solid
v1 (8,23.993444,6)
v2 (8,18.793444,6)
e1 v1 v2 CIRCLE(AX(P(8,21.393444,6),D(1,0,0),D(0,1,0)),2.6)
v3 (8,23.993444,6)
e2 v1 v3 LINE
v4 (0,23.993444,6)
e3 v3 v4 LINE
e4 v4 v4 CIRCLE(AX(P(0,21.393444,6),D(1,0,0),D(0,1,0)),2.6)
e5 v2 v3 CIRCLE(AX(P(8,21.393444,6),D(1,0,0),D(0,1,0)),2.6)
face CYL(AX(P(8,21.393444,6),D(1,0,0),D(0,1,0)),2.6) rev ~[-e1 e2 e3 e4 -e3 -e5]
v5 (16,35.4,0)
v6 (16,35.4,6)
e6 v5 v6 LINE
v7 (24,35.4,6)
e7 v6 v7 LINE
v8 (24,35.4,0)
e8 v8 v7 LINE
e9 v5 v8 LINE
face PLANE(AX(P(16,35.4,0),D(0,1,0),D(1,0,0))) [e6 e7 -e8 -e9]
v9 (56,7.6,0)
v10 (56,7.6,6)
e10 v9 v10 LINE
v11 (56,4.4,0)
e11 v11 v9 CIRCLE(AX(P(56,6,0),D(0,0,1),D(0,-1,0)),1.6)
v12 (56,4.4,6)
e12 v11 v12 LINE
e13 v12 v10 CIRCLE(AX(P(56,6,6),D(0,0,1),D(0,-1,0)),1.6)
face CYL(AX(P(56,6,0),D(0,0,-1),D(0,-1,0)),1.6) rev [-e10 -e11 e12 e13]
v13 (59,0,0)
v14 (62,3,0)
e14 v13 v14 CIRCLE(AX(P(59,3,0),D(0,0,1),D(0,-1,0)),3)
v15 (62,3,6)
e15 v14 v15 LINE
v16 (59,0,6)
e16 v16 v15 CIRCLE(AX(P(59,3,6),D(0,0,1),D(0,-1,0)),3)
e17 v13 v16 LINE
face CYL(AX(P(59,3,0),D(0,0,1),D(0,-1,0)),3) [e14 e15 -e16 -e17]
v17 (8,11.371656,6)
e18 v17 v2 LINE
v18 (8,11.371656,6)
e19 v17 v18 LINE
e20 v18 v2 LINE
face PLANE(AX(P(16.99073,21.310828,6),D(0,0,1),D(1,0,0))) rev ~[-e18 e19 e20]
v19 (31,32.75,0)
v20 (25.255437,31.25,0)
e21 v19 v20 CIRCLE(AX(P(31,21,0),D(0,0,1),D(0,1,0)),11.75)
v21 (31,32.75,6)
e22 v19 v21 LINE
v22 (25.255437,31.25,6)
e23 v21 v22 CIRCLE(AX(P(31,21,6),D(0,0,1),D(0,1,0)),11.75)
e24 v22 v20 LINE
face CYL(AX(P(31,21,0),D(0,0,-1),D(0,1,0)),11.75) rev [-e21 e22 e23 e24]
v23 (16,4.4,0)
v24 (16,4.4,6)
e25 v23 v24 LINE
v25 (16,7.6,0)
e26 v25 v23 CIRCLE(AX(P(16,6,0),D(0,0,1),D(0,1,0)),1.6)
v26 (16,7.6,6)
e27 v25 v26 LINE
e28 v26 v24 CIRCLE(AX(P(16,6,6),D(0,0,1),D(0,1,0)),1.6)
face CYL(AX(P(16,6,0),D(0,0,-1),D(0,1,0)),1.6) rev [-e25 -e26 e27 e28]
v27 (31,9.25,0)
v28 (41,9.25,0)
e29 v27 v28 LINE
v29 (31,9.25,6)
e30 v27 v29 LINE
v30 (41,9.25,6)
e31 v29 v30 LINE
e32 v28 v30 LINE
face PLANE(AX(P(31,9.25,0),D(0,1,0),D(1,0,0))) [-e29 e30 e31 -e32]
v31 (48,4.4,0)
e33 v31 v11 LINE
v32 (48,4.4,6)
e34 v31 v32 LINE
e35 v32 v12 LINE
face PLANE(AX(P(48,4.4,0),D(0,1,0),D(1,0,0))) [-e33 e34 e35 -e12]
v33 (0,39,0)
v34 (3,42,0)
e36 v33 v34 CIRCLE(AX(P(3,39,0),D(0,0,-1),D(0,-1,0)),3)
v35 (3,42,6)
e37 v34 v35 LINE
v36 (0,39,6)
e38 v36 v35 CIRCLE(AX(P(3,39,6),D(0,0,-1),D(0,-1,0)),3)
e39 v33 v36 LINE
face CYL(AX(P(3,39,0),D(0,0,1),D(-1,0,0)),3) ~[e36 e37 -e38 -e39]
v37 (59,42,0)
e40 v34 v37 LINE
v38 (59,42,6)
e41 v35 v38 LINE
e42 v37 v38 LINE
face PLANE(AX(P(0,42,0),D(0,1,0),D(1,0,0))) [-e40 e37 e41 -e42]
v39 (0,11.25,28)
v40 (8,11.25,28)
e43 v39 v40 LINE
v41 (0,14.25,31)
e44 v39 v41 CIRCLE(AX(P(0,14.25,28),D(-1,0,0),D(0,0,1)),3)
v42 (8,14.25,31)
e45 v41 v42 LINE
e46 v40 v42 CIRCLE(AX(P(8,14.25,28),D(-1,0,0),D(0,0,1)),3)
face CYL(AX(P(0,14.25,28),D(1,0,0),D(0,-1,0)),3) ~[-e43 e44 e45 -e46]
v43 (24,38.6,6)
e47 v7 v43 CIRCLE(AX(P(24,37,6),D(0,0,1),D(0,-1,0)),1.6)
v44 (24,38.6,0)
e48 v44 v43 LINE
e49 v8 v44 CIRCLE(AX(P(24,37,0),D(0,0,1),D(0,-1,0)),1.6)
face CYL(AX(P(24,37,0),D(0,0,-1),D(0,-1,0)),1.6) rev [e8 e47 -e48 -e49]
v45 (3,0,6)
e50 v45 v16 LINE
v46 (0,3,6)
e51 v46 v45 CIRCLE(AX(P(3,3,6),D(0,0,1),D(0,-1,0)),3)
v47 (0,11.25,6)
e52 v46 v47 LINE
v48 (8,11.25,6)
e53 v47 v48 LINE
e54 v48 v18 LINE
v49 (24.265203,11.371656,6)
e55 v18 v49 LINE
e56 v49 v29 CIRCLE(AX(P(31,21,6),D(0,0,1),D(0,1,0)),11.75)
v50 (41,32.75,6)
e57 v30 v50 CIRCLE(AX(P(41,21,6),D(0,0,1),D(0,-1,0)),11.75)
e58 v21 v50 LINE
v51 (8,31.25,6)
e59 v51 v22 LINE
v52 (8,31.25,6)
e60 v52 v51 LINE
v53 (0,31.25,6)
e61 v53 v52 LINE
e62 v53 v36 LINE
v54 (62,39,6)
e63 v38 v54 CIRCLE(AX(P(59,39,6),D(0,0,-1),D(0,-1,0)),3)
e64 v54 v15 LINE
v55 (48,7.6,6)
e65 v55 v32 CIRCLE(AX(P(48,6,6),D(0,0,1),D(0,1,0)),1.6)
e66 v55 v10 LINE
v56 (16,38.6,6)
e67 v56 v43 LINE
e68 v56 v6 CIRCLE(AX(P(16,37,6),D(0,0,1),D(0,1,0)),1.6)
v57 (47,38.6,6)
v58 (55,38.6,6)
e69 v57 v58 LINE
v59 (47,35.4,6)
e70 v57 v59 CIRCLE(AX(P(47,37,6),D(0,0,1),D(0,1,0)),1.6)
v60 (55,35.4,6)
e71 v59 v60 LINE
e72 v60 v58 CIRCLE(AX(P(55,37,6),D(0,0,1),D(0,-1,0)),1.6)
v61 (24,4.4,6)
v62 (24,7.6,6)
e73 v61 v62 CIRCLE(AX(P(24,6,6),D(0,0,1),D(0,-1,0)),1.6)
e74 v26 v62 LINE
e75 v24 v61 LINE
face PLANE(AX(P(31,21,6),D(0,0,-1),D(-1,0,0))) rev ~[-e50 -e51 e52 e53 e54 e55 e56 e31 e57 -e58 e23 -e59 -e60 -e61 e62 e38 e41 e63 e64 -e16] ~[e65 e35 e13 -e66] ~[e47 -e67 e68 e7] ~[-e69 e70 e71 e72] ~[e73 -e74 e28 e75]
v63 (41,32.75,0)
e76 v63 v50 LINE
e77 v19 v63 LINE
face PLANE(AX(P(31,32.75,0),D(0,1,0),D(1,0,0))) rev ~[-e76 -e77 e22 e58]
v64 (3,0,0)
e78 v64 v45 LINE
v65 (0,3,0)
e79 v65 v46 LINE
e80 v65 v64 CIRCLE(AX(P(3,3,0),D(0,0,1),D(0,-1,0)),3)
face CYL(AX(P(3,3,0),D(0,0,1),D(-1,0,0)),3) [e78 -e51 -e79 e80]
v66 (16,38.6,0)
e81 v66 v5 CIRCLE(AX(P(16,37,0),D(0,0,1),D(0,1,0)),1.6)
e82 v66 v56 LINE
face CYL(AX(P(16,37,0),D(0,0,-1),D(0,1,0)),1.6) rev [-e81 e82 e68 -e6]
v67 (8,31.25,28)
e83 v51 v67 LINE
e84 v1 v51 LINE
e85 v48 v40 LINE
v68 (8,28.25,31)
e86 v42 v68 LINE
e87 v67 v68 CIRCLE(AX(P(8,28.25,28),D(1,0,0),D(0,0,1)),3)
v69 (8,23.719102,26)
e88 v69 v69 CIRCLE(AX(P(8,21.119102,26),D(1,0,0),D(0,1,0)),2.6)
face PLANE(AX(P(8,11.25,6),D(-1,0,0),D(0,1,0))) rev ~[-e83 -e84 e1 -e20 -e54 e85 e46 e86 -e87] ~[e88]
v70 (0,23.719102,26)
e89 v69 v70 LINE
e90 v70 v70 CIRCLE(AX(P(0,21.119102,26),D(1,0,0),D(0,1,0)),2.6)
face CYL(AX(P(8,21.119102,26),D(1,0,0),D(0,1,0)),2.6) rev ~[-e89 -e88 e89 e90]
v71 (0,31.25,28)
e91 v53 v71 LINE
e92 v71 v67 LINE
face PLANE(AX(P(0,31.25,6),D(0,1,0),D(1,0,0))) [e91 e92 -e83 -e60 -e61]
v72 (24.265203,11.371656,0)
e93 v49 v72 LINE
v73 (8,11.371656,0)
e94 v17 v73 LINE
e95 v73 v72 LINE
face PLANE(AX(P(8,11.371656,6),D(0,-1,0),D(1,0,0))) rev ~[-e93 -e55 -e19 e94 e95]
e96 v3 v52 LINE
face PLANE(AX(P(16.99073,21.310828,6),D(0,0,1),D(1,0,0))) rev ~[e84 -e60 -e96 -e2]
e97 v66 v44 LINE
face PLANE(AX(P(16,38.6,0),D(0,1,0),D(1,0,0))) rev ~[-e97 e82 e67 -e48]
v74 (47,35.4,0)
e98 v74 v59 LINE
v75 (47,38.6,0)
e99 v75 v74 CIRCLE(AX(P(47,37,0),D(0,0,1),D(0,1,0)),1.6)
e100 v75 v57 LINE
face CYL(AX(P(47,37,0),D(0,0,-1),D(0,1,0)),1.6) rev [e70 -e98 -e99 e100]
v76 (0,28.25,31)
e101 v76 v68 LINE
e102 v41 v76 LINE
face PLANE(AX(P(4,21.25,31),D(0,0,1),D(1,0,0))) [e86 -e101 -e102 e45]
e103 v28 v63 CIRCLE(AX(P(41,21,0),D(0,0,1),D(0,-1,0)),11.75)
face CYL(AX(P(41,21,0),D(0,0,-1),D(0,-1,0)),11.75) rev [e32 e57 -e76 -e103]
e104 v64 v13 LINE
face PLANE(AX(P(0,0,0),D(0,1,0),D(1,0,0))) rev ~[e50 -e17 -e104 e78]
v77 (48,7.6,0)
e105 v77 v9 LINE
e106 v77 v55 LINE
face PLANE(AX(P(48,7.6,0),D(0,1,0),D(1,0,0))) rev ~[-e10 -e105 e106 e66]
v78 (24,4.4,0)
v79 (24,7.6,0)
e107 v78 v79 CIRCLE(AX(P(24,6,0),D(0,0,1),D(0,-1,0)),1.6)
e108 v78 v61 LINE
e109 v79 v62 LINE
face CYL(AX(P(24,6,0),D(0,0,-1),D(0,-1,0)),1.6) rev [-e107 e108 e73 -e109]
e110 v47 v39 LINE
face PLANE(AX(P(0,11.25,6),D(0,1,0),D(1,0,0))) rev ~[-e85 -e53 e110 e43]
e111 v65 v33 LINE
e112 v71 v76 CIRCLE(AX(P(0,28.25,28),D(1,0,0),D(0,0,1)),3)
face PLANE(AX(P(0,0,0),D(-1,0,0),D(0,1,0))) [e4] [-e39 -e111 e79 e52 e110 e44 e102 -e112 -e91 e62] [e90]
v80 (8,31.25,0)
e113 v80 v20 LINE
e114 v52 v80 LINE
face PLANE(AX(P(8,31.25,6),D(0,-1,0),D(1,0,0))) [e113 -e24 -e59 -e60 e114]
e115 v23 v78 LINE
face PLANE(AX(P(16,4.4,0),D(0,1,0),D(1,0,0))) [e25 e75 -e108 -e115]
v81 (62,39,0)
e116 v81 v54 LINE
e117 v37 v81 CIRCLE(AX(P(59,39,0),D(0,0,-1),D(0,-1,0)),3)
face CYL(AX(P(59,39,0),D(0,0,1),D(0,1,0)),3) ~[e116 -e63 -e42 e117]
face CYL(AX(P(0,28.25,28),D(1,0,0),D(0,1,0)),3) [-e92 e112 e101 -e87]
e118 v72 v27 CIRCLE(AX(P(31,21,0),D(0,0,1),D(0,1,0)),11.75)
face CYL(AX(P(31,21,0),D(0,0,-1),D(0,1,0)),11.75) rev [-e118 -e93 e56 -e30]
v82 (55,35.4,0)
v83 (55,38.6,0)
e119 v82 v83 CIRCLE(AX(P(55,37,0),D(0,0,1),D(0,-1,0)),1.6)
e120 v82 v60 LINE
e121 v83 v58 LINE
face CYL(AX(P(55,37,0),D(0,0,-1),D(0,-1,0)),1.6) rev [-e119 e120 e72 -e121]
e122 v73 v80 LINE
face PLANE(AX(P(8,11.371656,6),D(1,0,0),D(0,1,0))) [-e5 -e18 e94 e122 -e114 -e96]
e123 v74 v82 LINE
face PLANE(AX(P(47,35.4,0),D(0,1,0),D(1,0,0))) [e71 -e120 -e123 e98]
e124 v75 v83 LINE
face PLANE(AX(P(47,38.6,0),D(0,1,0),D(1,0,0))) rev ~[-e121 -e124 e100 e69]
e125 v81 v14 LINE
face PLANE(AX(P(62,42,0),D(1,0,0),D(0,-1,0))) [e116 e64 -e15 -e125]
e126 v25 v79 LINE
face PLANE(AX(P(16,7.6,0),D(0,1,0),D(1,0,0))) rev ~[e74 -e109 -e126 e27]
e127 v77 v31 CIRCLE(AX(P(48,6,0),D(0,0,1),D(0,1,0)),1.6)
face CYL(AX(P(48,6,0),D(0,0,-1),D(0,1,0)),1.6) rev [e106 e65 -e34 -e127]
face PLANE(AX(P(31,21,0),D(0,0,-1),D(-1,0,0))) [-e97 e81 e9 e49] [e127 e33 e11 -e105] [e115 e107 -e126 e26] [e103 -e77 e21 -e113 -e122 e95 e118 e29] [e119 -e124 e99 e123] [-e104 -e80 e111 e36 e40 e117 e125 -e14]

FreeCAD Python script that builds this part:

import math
import FreeCAD as App
import Part
import Sketcher
from FreeCAD import Vector
Q = App.Units.Quantity


def edges_at(feature, points):
    """Names of the edges that pass closest to the given points."""
    edges = feature.Shape.Edges
    near = lambda p: min(range(len(edges)), key=lambda i: edges[i].distToShape(Part.Vertex(*p))[0])
    return sorted({f"Edge{near(p) + 1}" for p in points})

doc = App.newDocument("Part")
body = doc.addObject("PartDesign::Body", "Body")

sketch1 = body.newObject("Sketcher::SketchObject", "Sketch")
sketch1.AttachmentSupport = (doc.getObject("XY_Plane"), [""])
sketch1.MapMode = "FlatFace"
sketch1.addGeometry([
    Part.LineSegment(Vector(62, 0, 0), Vector(62, 42, 0)),
    Part.LineSegment(Vector(62, 42, 0), Vector(0, 42, 0)),
    Part.LineSegment(Vector(0, 42, 0), Vector(0, 0, 0)),
    Part.LineSegment(Vector(0, 0, 0), Vector(62, 0, 0)),
    Part.LineSegment(Vector(48, 7.6, 0), Vector(56, 7.6, 0)),
    Part.ArcOfCircle(Part.Circle(Vector(56, 6, 0), Vector(0, 0, 1), 1.6), math.radians(-90), math.radians(90)),
    Part.LineSegment(Vector(56, 4.4, 0), Vector(48, 4.4, 0)),
    Part.ArcOfCircle(Part.Circle(Vector(48, 6, 0), Vector(0, 0, 1), 1.6), math.radians(90), math.radians(270)),
    Part.LineSegment(Vector(16, 7.6, 0), Vector(24, 7.6, 0)),
    Part.ArcOfCircle(Part.Circle(Vector(24, 6, 0), Vector(0, 0, 1), 1.6), math.radians(-90), math.radians(90)),
    Part.LineSegment(Vector(24, 4.4, 0), Vector(16, 4.4, 0)),
    Part.ArcOfCircle(Part.Circle(Vector(16, 6, 0), Vector(0, 0, 1), 1.6), math.radians(90), math.radians(270)),
    Part.LineSegment(Vector(31, 32.8, 0), Vector(41, 32.8, 0)),
    Part.ArcOfCircle(Part.Circle(Vector(41, 21, 0), Vector(0, 0, 1), 11.8), math.radians(-90), math.radians(90)),
    Part.LineSegment(Vector(41, 9.2, 0), Vector(31, 9.2, 0)),
    Part.ArcOfCircle(Part.Circle(Vector(31, 21, 0), Vector(0, 0, 1), 11.8), math.radians(90), math.radians(270)),
    Part.LineSegment(Vector(47, 38.6, 0), Vector(55, 38.6, 0)),
    Part.ArcOfCircle(Part.Circle(Vector(55, 37, 0), Vector(0, 0, 1), 1.6), math.radians(-90), math.radians(90)),
    Part.LineSegment(Vector(55, 35.4, 0), Vector(47, 35.4, 0)),
    Part.ArcOfCircle(Part.Circle(Vector(47, 37, 0), Vector(0, 0, 1), 1.6), math.radians(90), math.radians(270)),
    Part.LineSegment(Vector(16, 38.6, 0), Vector(24, 38.6, 0)),
    Part.ArcOfCircle(Part.Circle(Vector(24, 37, 0), Vector(0, 0, 1), 1.6), math.radians(-90), math.radians(90)),
    Part.LineSegment(Vector(24, 35.4, 0), Vector(16, 35.4, 0)),
    Part.ArcOfCircle(Part.Circle(Vector(16, 37, 0), Vector(0, 0, 1), 1.6), math.radians(90), math.radians(270)),
], False)
sketch1.addConstraint([
    Sketcher.Constraint("Coincident", 0, 2, 1, 1),
    Sketcher.Constraint("Coincident", 1, 2, 2, 1),
    Sketcher.Constraint("Coincident", 2, 2, 3, 1),
    Sketcher.Constraint("Coincident", 3, 2, 0, 1),
    Sketcher.Constraint("Tangent", 4, 2, 5, 2),
    Sketcher.Constraint("Tangent", 5, 1, 6, 1),
    Sketcher.Constraint("Tangent", 6, 2, 7, 2),
    Sketcher.Constraint("Tangent", 7, 1, 4, 1),
    Sketcher.Constraint("Tangent", 8, 2, 9, 2),
    Sketcher.Constraint("Tangent", 9, 1, 10, 1),
    Sketcher.Constraint("Tangent", 10, 2, 11, 2),
    Sketcher.Constraint("Tangent", 11, 1, 8, 1),
    Sketcher.Constraint("Tangent", 12, 2, 13, 2),
    Sketcher.Constraint("Tangent", 13, 1, 14, 1),
    Sketcher.Constraint("Tangent", 14, 2, 15, 2),
    Sketcher.Constraint("Tangent", 15, 1, 12, 1),
    Sketcher.Constraint("Tangent", 16, 2, 17, 2),
    Sketcher.Constraint("Tangent", 17, 1, 18, 1),
    Sketcher.Constraint("Tangent", 18, 2, 19, 2),
    Sketcher.Constraint("Tangent", 19, 1, 16, 1),
    Sketcher.Constraint("Tangent", 20, 2, 21, 2),
    Sketcher.Constraint("Tangent", 21, 1, 22, 1),
    Sketcher.Constraint("Tangent", 22, 2, 23, 2),
    Sketcher.Constraint("Tangent", 23, 1, 20, 1),
    Sketcher.Constraint("Vertical", 0),
    Sketcher.Constraint("Horizontal", 1),
    Sketcher.Constraint("Vertical", 2),
    Sketcher.Constraint("Horizontal", 3),
    Sketcher.Constraint("Horizontal", 4),
    Sketcher.Constraint("Horizontal", 6),
    Sketcher.Constraint("Horizontal", 8),
    Sketcher.Constraint("Horizontal", 10),
    Sketcher.Constraint("Horizontal", 12),
    Sketcher.Constraint("Horizontal", 14),
    Sketcher.Constraint("Horizontal", 16),
    Sketcher.Constraint("Horizontal", 18),
    Sketcher.Constraint("Horizontal", 20),
    Sketcher.Constraint("Horizontal", 22),
    Sketcher.Constraint("Coincident", 2, 2, -1, 1),
    Sketcher.Constraint("Equal", 7, 9),
    Sketcher.Constraint("Equal", 11, 17),
    Sketcher.Constraint("Equal", 19, 21),
    Sketcher.Constraint("Horizontal", 7, 3, 9, 3),
    Sketcher.Constraint("Horizontal", 19, 3, 21, 3),
    Sketcher.Constraint("Vertical", 9, 3, 21, 3),
    Sketcher.Constraint("Vertical", 11, 3, 23, 3),
    Sketcher.Constraint("Equal", 6, 8),
    Sketcher.Constraint("Equal", 10, 16),
    Sketcher.Constraint("Radius", 5, Q("1.6 mm")),
    Sketcher.Constraint("DistanceX", 1, 2, 1, 1, Q("62 mm")),
    Sketcher.Constraint("DistanceX", 4, 1, 4, 2, Q("8 mm")),
    Sketcher.Constraint("DistanceX", 12, 1, 12, 2, Q("10 mm")),
    Sketcher.Constraint("DistanceY", 0, 1, 0, 2, Q("42 mm")),
    Sketcher.Constraint("Radius", 13, Q("11.75 mm")),
    Sketcher.Constraint("DistanceX", -1, 1, 5, 3, Q("56 mm")),
    Sketcher.Constraint("DistanceY", -1, 1, 5, 3, Q("6 mm")),
    Sketcher.Constraint("DistanceX", -1, 1, 9, 3, Q("24 mm")),
    Sketcher.Constraint("DistanceX", -1, 1, 13, 3, Q("41 mm")),
    Sketcher.Constraint("DistanceY", -1, 1, 13, 3, Q("21 mm")),
    Sketcher.Constraint("DistanceX", -1, 1, 17, 3, Q("55 mm")),
    Sketcher.Constraint("DistanceY", -1, 1, 17, 3, Q("37 mm")),
])
pad1 = body.newObject("PartDesign::Pad", "Pad")
pad1.Profile = sketch1
pad1.Length = 6

sketch2 = body.newObject("Sketcher::SketchObject", "Sketch001")
sketch2.AttachmentSupport = (doc.getObject("XY_Plane"), [""])
sketch2.MapMode = "FlatFace"
sketch2.AttachmentOffset = App.Placement(Vector(0, 0, 6), App.Rotation())
sketch2.addGeometry([
    Part.LineSegment(Vector(0, 31, 0), Vector(0, 11, 0)),
    Part.LineSegment(Vector(0, 11, 0), Vector(8, 11, 0)),
    Part.LineSegment(Vector(8, 11, 0), Vector(8, 31, 0)),
    Part.LineSegment(Vector(8, 31, 0), Vector(0, 31, 0)),
], False)
sketch2.addConstraint([
    Sketcher.Constraint("Coincident", 0, 2, 1, 1),
    Sketcher.Constraint("Coincident", 1, 2, 2, 1),
    Sketcher.Constraint("Coincident", 2, 2, 3, 1),
    Sketcher.Constraint("Coincident", 3, 2, 0, 1),
    Sketcher.Constraint("Vertical", 0),
    Sketcher.Constraint("Horizontal", 1),
    Sketcher.Constraint("Vertical", 2),
    Sketcher.Constraint("Horizontal", 3),
    Sketcher.Constraint("PointOnObject", 0, 2, -2),
    Sketcher.Constraint("DistanceX", 1, 1, 1, 2, Q("8 mm")),
    Sketcher.Constraint("DistanceY", 0, 2, 0, 1, Q("20 mm")),
    Sketcher.Constraint("DistanceY", -1, 1, 0, 2, Q("11.25 mm")),
])
pad2 = body.newObject("PartDesign::Pad", "Pad001")
pad2.Profile = sketch2
pad2.Type = "TwoLengths"
pad2.Length = 25
pad2.Length2 = 4

sketch3 = body.newObject("Sketcher::SketchObject", "Sketch002")
sketch3.AttachmentSupport = (doc.getObject("XY_Plane"), [""])
sketch3.MapMode = "FlatFace"
sketch3.AttachmentOffset = App.Placement(Vector(0, 0, 6), App.Rotation())
sketch3.addGeometry([
    Part.LineSegment(Vector(8, 31, 0), Vector(8, 11, 0)),
    Part.LineSegment(Vector(8, 11, 0), Vector(26, 11, 0)),
    Part.LineSegment(Vector(26, 11, 0), Vector(26, 31, 0)),
    Part.LineSegment(Vector(26, 31, 0), Vector(8, 31, 0)),
], False)
sketch3.addConstraint([
    Sketcher.Constraint("Coincident", 0, 2, 1, 1),
    Sketcher.Constraint("Coincident", 1, 2, 2, 1),
    Sketcher.Constraint("Coincident", 2, 2, 3, 1),
    Sketcher.Constraint("Coincident", 3, 2, 0, 1),
    Sketcher.Constraint("Vertical", 0),
    Sketcher.Constraint("Horizontal", 1),
    Sketcher.Constraint("Vertical", 2),
    Sketcher.Constraint("Horizontal", 3),
    Sketcher.Constraint("DistanceX", -1, 1, 0, 2, Q("8 mm")),
    Sketcher.Constraint("DistanceY", -1, 1, 2, 2, Q("31.25 mm")),
    Sketcher.Constraint("DistanceX", 1, 1, 1, 2, Q("17.981461 mm")),
    Sketcher.Constraint("DistanceY", 0, 2, 0, 1, Q("19.878344 mm")),
])
pocket1 = body.newObject("PartDesign::Pocket", "Pocket")
pocket1.Profile = sketch3
pocket1.Length = 6

sketch4 = body.newObject("Sketcher::SketchObject", "Sketch003")
sketch4.AttachmentSupport = (doc.getObject("YZ_Plane"), [""])
sketch4.MapMode = "FlatFace"
sketch4.AttachmentOffset = App.Placement(Vector(0, 0, 8), App.Rotation())
sketch4.addGeometry([
    Part.Circle(Vector(21.1, 26, 0), Vector(0, 0, 1), 2.6),
    Part.Circle(Vector(21.4, 6, 0), Vector(0, 0, 1), 2.6),
], False)
sketch4.addConstraint([
    Sketcher.Constraint("Equal", 0, 1),
    Sketcher.Constraint("Diameter", 0, Q("5.2 mm")),
    Sketcher.Constraint("DistanceY", -1, 1, 0, 3, Q("26 mm")),
    Sketcher.Constraint("DistanceY", -1, 1, 1, 3, Q("6 mm")),
    Sketcher.Constraint("DistanceX", 0, 3, 1, 3, Q("0.274342 mm")),
    Sketcher.Constraint("DistanceX", -1, 1, 0, 3, Q("21.119102 mm")),
])
pocket2 = body.newObject("PartDesign::Pocket", "Pocket001")
pocket2.Profile = sketch4
pocket2.Length = 9
doc.recompute()

fillet = body.newObject("PartDesign::Fillet", "Fillet")
fillet.Base = (pocket2, edges_at(pocket2, [
    (0, 0, 3),
    (62, 0, 3),
    (62, 42, 3),
    (0, 42, 3),
    (4, 31.25, 31),
    (4, 11.25, 31),
]))
fillet.Radius = 3

doc.recompute()
